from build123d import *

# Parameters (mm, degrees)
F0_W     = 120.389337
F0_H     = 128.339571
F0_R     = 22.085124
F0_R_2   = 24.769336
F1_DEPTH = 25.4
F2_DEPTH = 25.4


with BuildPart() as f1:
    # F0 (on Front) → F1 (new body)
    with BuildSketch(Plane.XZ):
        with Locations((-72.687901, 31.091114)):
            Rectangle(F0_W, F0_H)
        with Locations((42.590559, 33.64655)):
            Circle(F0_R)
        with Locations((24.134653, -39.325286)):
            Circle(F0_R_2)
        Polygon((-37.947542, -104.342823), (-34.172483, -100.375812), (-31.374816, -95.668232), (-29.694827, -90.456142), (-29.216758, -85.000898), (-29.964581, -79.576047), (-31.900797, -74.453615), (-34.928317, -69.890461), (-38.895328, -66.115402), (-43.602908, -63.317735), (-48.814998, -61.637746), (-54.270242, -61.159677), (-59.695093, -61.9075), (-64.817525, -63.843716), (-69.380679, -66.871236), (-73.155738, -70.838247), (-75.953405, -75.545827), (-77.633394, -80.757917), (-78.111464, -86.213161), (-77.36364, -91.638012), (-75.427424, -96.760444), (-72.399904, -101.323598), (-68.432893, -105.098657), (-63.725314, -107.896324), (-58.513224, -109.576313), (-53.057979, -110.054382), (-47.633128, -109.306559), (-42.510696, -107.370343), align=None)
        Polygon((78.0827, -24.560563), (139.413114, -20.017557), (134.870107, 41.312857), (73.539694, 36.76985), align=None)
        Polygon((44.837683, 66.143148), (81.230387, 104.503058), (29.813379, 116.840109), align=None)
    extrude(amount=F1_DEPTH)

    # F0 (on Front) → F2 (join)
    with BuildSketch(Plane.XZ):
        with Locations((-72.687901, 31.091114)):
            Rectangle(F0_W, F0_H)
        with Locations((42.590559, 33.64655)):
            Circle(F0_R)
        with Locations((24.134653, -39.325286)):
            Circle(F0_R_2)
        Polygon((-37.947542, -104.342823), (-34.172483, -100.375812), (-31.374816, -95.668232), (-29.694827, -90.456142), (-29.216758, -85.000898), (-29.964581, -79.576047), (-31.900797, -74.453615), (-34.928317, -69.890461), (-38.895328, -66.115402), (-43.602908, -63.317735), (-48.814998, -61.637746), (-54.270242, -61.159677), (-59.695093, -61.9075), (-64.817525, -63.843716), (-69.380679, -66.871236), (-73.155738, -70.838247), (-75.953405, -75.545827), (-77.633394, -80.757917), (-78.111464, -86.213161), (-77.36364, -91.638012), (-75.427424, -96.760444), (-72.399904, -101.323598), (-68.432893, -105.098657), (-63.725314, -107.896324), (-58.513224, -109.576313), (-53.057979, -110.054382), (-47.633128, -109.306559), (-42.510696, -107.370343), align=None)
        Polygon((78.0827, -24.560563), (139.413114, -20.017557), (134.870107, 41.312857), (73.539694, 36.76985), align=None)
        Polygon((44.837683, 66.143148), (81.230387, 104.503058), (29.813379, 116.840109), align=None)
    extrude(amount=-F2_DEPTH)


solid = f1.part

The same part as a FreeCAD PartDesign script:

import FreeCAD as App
import Part
import Sketcher
Q = App.Units.Quantity

doc = App.newDocument("Part")
body = doc.addObject("PartDesign::Body", "Body")
body.AllowCompound = True

# Sketch on XZ plane
sketch1 = body.newObject("Sketcher::SketchObject", "Sketch")
sketch1.AttachmentSupport = (doc.getObject("XZ_Plane"), [""])
sketch1.MapMode = "FlatFace"
sketch1.addGeometry([
    Part.LineSegment(App.Vector(-132.882569, 95.260899, 0), App.Vector(-132.882569, -33.078671, 0)),  # 0
    Part.LineSegment(App.Vector(-132.882569, -33.078671, 0), App.Vector(-12.493232, -33.078671, 0)),  # 1
    Part.LineSegment(App.Vector(-12.493232, -33.078671, 0), App.Vector(-12.493232, 95.260899, 0)),  # 2
    Part.LineSegment(App.Vector(-12.493232, 95.260899, 0), App.Vector(-132.882569, 95.260899, 0)),  # 3
    Part.Circle(App.Vector(42.590559, 33.64655, 0), App.Vector(0, 0, 1), 22.085124),  # 4
    Part.Circle(App.Vector(24.134653, -39.325286, 0), App.Vector(0, 0, 1), 24.769336),  # 5
    Part.LineSegment(App.Vector(-37.947542, -104.342823, 0), App.Vector(-34.172483, -100.375812, 0)),  # 6
    Part.LineSegment(App.Vector(-34.172483, -100.375812, 0), App.Vector(-31.374816, -95.668232, 0)),  # 7
    Part.LineSegment(App.Vector(-31.374816, -95.668232, 0), App.Vector(-29.694827, -90.456142, 0)),  # 8
    Part.LineSegment(App.Vector(-29.694827, -90.456142, 0), App.Vector(-29.216758, -85.000898, 0)),  # 9
    Part.LineSegment(App.Vector(-29.216758, -85.000898, 0), App.Vector(-29.964581, -79.576047, 0)),  # 10
    Part.LineSegment(App.Vector(-29.964581, -79.576047, 0), App.Vector(-31.900797, -74.453615, 0)),  # 11
    Part.LineSegment(App.Vector(-31.900797, -74.453615, 0), App.Vector(-34.928317, -69.890461, 0)),  # 12
    Part.LineSegment(App.Vector(-34.928317, -69.890461, 0), App.Vector(-38.895328, -66.115402, 0)),  # 13
    Part.LineSegment(App.Vector(-38.895328, -66.115402, 0), App.Vector(-43.602908, -63.317735, 0)),  # 14
    Part.LineSegment(App.Vector(-43.602908, -63.317735, 0), App.Vector(-48.814998, -61.637746, 0)),  # 15
    Part.LineSegment(App.Vector(-48.814998, -61.637746, 0), App.Vector(-54.270242, -61.159677, 0)),  # 16
    Part.LineSegment(App.Vector(-54.270242, -61.159677, 0), App.Vector(-59.695093, -61.9075, 0)),  # 17
    Part.LineSegment(App.Vector(-59.695093, -61.9075, 0), App.Vector(-64.817525, -63.843716, 0)),  # 18
    Part.LineSegment(App.Vector(-64.817525, -63.843716, 0), App.Vector(-69.380679, -66.871236, 0)),  # 19
    Part.LineSegment(App.Vector(-69.380679, -66.871236, 0), App.Vector(-73.155738, -70.838247, 0)),  # 20
    Part.LineSegment(App.Vector(-73.155738, -70.838247, 0), App.Vector(-75.953405, -75.545827, 0)),  # 21
    Part.LineSegment(App.Vector(-75.953405, -75.545827, 0), App.Vector(-77.633394, -80.757917, 0)),  # 22
    Part.LineSegment(App.Vector(-77.633394, -80.757917, 0), App.Vector(-78.111464, -86.213161, 0)),  # 23
    Part.LineSegment(App.Vector(-78.111464, -86.213161, 0), App.Vector(-77.36364, -91.638012, 0)),  # 24
    Part.LineSegment(App.Vector(-77.36364, -91.638012, 0), App.Vector(-75.427424, -96.760444, 0)),  # 25
    Part.LineSegment(App.Vector(-75.427424, -96.760444, 0), App.Vector(-72.399904, -101.323598, 0)),  # 26
    Part.LineSegment(App.Vector(-72.399904, -101.323598, 0), App.Vector(-68.432893, -105.098657, 0)),  # 27
    Part.LineSegment(App.Vector(-68.432893, -105.098657, 0), App.Vector(-63.725314, -107.896324, 0)),  # 28
    Part.LineSegment(App.Vector(-63.725314, -107.896324, 0), App.Vector(-58.513224, -109.576313, 0)),  # 29
    Part.LineSegment(App.Vector(-58.513224, -109.576313, 0), App.Vector(-53.057979, -110.054382, 0)),  # 30
    Part.LineSegment(App.Vector(-53.057979, -110.054382, 0), App.Vector(-47.633128, -109.306559, 0)),  # 31
    Part.LineSegment(App.Vector(-47.633128, -109.306559, 0), App.Vector(-42.510696, -107.370343, 0)),  # 32
    Part.LineSegment(App.Vector(-42.510696, -107.370343, 0), App.Vector(-37.947542, -104.342823, 0)),  # 33
    Part.LineSegment(App.Vector(78.0827, -24.560563, 0), App.Vector(139.413114, -20.017557, 0)),  # 34
    Part.LineSegment(App.Vector(139.413114, -20.017557, 0), App.Vector(134.870107, 41.312857, 0)),  # 35
    Part.LineSegment(App.Vector(134.870107, 41.312857, 0), App.Vector(73.539694, 36.76985, 0)),  # 36
    Part.LineSegment(App.Vector(73.539694, 36.76985, 0), App.Vector(78.0827, -24.560563, 0)),  # 37
    Part.LineSegment(App.Vector(44.837683, 66.143148, 0), App.Vector(81.230387, 104.503058, 0)),  # 38
    Part.LineSegment(App.Vector(81.230387, 104.503058, 0), App.Vector(29.813379, 116.840109, 0)),  # 39
    Part.LineSegment(App.Vector(29.813379, 116.840109, 0), App.Vector(44.837683, 66.143148, 0)),  # 40
], False)
sketch1.addConstraint([
    Sketcher.Constraint("Coincident", 0, 2, 1, 1),
    Sketcher.Constraint("Coincident", 1, 2, 2, 1),
    Sketcher.Constraint("Coincident", 2, 2, 3, 1),
    Sketcher.Constraint("Coincident", 3, 2, 0, 1),
    Sketcher.Constraint("Coincident", 6, 2, 7, 1),
    Sketcher.Constraint("Coincident", 7, 2, 8, 1),
    Sketcher.Constraint("Coincident", 8, 2, 9, 1),
    Sketcher.Constraint("Coincident", 9, 2, 10, 1),
    Sketcher.Constraint("Coincident", 10, 2, 11, 1),
    Sketcher.Constraint("Coincident", 11, 2, 12, 1),
    Sketcher.Constraint("Coincident", 12, 2, 13, 1),
    Sketcher.Constraint("Coincident", 13, 2, 14, 1),
    Sketcher.Constraint("Coincident", 14, 2, 15, 1),
    Sketcher.Constraint("Coincident", 15, 2, 16, 1),
    Sketcher.Constraint("Coincident", 16, 2, 17, 1),
    Sketcher.Constraint("Coincident", 17, 2, 18, 1),
    Sketcher.Constraint("Coincident", 18, 2, 19, 1),
    Sketcher.Constraint("Coincident", 19, 2, 20, 1),
    Sketcher.Constraint("Coincident", 20, 2, 21, 1),
    Sketcher.Constraint("Coincident", 21, 2, 22, 1),
    Sketcher.Constraint("Coincident", 22, 2, 23, 1),
    Sketcher.Constraint("Coincident", 23, 2, 24, 1),
    Sketcher.Constraint("Coincident", 24, 2, 25, 1),
    Sketcher.Constraint("Coincident", 25, 2, 26, 1),
    Sketcher.Constraint("Coincident", 26, 2, 27, 1),
    Sketcher.Constraint("Coincident", 27, 2, 28, 1),
    Sketcher.Constraint("Coincident", 28, 2, 29, 1),
    Sketcher.Constraint("Coincident", 29, 2, 30, 1),
    Sketcher.Constraint("Coincident", 30, 2, 31, 1),
    Sketcher.Constraint("Coincident", 31, 2, 32, 1),
    Sketcher.Constraint("Coincident", 32, 2, 33, 1),
    Sketcher.Constraint("Coincident", 33, 2, 6, 1),
    Sketcher.Constraint("Coincident", 34, 2, 35, 1),
    Sketcher.Constraint("Coincident", 35, 2, 36, 1),
    Sketcher.Constraint("Coincident", 36, 2, 37, 1),
    Sketcher.Constraint("Coincident", 37, 2, 34, 1),
    Sketcher.Constraint("Coincident", 38, 2, 39, 1),
    Sketcher.Constraint("Coincident", 39, 2, 40, 1),
    Sketcher.Constraint("Coincident", 40, 2, 38, 1),
    Sketcher.Constraint("Vertical", 0),
    Sketcher.Constraint("Horizontal", 1),
    Sketcher.Constraint("Vertical", 2),
    Sketcher.Constraint("Horizontal", 3),
    Sketcher.Constraint("Diameter", 5, 49.538672),
    Sketcher.Constraint("Diameter", 4, 44.170248),
    Sketcher.Constraint("DistanceX", 38, 2, 35, 2, Q("2.1118 in")),
    Sketcher.Constraint("DistanceY", 0, 2, 0, 1, 128.339571),
    Sketcher.Constraint("DistanceY", -1, 1, 2, 2, 95.260899),
    Sketcher.Constraint("DistanceY", 9, 2, -1, 1, 85.000898),
    Sketcher.Constraint("DistanceX", 15, 2, -1, 1, 48.814998),
    Sketcher.Constraint("DistanceY", 17, 2, -1, 1, 61.9075),
    Sketcher.Constraint("DistanceY", 26, 2, -1, 1, 101.323598),
    Sketcher.Constraint("DistanceX", -1, 1, 37, 2, 78.0827),
    Sketcher.Constraint("DistanceX", 12, 2, 7, 2, 3.553501),
    Sketcher.Constraint("DistanceX", 13, 2, 8, 2, 9.200501),
    Sketcher.Constraint("DistanceX", 15, 2, 11, 2, 16.914201),
    Sketcher.Constraint("DistanceY", 10, 2, 15, 2, 17.938301),
    Sketcher.Constraint("DistanceY", 19, 2, 14, 2, 3.553501),
    Sketcher.Constraint("DistanceY", 20, 2, 15, 2, 9.200501),
    Sketcher.Constraint("DistanceY", 22, 2, 18, 2, 16.914201),
    Sketcher.Constraint("DistanceX", 22, 2, 17, 2, 17.938301),
    Sketcher.Constraint("DistanceX", 21, 2, 26, 2, 3.553501),
    Sketcher.Constraint("DistanceX", 22, 2, 27, 2, 9.200501),
    Sketcher.Constraint("DistanceX", 25, 2, 29, 2, 16.9142),
    Sketcher.Constraint("DistanceY", 29, 2, 24, 2, 17.938301),
    Sketcher.Constraint("DistanceY", 31, 2, 27, 2, 4.207902),
    Sketcher.Constraint("DistanceY", 4, 3, 36, 2, 3.1233),
    Sketcher.Constraint("DistanceY", 35, 2, 38, 2, 63.190201),
    Sketcher.Constraint("Distance", 9, 5.476152),
    Sketcher.Constraint("Distance", 16, 5.476152),
    Sketcher.Constraint("Distance", 23, 5.476152),
    Sketcher.Constraint("Distance", 28, 5.476152),
    Sketcher.Constraint("Distance", 38, 52.87638),
    Sketcher.Constraint("Distance", 39, 52.87638),
    Sketcher.Constraint("Distance", 40, 52.87638),
    Sketcher.Constraint("DistanceX", 1, 1, 1, 2, 120.389337),
    Sketcher.Constraint("DistanceX", -1, 1, 4, 3, 42.590559),
    Sketcher.Constraint("DistanceY", -1, 1, 4, 3, 33.64655),
    Sketcher.Constraint("DistanceX", 0, 2, -1, 1, 132.882569),
    Sketcher.Constraint("DistanceY", 6, 2, -1, 1, 100.375812),
    Sketcher.Constraint("DistanceY", 8, 2, -1, 1, 90.456142),
    Sketcher.Constraint("DistanceX", 10, 2, -1, 1, 29.964581),
    Sketcher.Constraint("DistanceY", 12, 2, -1, 1, 69.890461),
    Sketcher.Constraint("DistanceX", 19, 2, -1, 1, 69.380679),
    Sketcher.Constraint("DistanceX", 20, 2, -1, 1, 73.155738),
    Sketcher.Constraint("DistanceY", 23, 2, -1, 1, 86.213161),
    Sketcher.Constraint("DistanceX", 24, 2, -1, 1, 77.36364),
    Sketcher.Constraint("DistanceX", 30, 2, -1, 1, 53.057979),
    Sketcher.Constraint("DistanceY", 31, 2, -1, 1, 109.306559),
    Sketcher.Constraint("DistanceX", -1, 1, 39, 2, 29.813379),
    Sketcher.Constraint("DistanceY", -1, 1, 39, 2, 116.840109),
    Sketcher.Constraint("DistanceX", 6, 2, 1, 2, 21.679251),
    Sketcher.Constraint("DistanceY", 6, 2, 7, 2, 4.70758),
    Sketcher.Constraint("DistanceX", 7, 2, 5, 3, 55.509469),
    Sketcher.Constraint("DistanceX", 7, 2, 8, 2, 1.679989),
    Sketcher.Constraint("DistanceY", 9, 2, 10, 2, 5.424851),
    Sketcher.Constraint("DistanceX", 11, 2, 9, 2, 2.684039),
    Sketcher.Constraint("DistanceY", 12, 2, 13, 2, 3.775059),
    Sketcher.Constraint("DistanceX", 14, 2, 13, 2, 4.70758),
    Sketcher.Constraint("DistanceY", 11, 2, 14, 2, 11.13588),
    Sketcher.Constraint("DistanceY", 14, 2, 15, 2, 1.679989),
    Sketcher.Constraint("DistanceY", 15, 2, 16, 2, 0.478069),
    Sketcher.Constraint("DistanceX", 17, 2, 16, 2, 5.424851),
    Sketcher.Constraint("DistanceY", 18, 2, 16, 2, 2.684039),
    Sketcher.Constraint("DistanceY", 21, 2, 20, 2, 4.70758),
    Sketcher.Constraint("DistanceX", 21, 2, 18, 2, 11.13588),
    Sketcher.Constraint("DistanceX", 22, 2, 21, 2, 1.679989),
    Sketcher.Constraint("DistanceY", 24, 2, 23, 2, 5.424851),
    Sketcher.Constraint("DistanceX", 23, 2, 25, 2, 2.68404),
    Sketcher.Constraint("DistanceX", 27, 2, 28, 2, 4.707579),
    Sketcher.Constraint("DistanceY", 28, 2, 25, 2, 11.13588),
    Sketcher.Constraint("DistanceY", 30, 2, 29, 2, 0.478069),
    Sketcher.Constraint("DistanceX", 30, 2, 31, 2, 5.424851),
    Sketcher.Constraint("DistanceX", 31, 2, 32, 2, 5.122432),
    Sketcher.Constraint("DistanceY", 30, 2, 32, 2, 2.684039),
    Sketcher.Constraint("DistanceX", 33, 2, 6, 2, 3.775059),
    Sketcher.Constraint("DistanceY", 33, 2, 6, 2, 3.967011),
    Sketcher.Constraint("DistanceX", 5, 3, 34, 2, 115.278461),
    Sketcher.Constraint("DistanceY", 5, 3, 34, 2, 19.307729),
    Sketcher.Constraint("DistanceY", 10, 2, 34, 2, 59.55849),
    Sketcher.Constraint("DistanceX", 2, 2, 35, 2, 147.363339),
    Sketcher.Constraint("DistanceX", 36, 2, 34, 2, 65.87342),
    Sketcher.Constraint("DistanceY", 37, 2, 35, 2, 65.87342),
])
pad1 = body.newObject("PartDesign::Pad", "Pad")
pad1.Profile = sketch1
pad1.Length = Q("1 in")

# Sketch on XZ plane
sketch2 = body.newObject("Sketcher::SketchObject", "Sketch001")
sketch2.AttachmentSupport = (doc.getObject("XZ_Plane"), [""])
sketch2.MapMode = "FlatFace"
sketch2.addGeometry([
    Part.LineSegment(App.Vector(-132.882569, 95.260899, 0), App.Vector(-132.882569, -33.078671, 0)),  # 0
    Part.LineSegment(App.Vector(-132.882569, -33.078671, 0), App.Vector(-12.493232, -33.078671, 0)),  # 1
    Part.LineSegment(App.Vector(-12.493232, -33.078671, 0), App.Vector(-12.493232, 95.260899, 0)),  # 2
    Part.LineSegment(App.Vector(-12.493232, 95.260899, 0), App.Vector(-132.882569, 95.260899, 0)),  # 3
    Part.Circle(App.Vector(42.590559, 33.64655, 0), App.Vector(0, 0, 1), 22.085124),  # 4
    Part.Circle(App.Vector(24.134653, -39.325286, 0), App.Vector(0, 0, 1), 24.769336),  # 5
    Part.LineSegment(App.Vector(-37.947542, -104.342823, 0), App.Vector(-34.172483, -100.375812, 0)),  # 6
    Part.LineSegment(App.Vector(-34.172483, -100.375812, 0), App.Vector(-31.374816, -95.668232, 0)),  # 7
    Part.LineSegment(App.Vector(-31.374816, -95.668232, 0), App.Vector(-29.694827, -90.456142, 0)),  # 8
    Part.LineSegment(App.Vector(-29.694827, -90.456142, 0), App.Vector(-29.216758, -85.000898, 0)),  # 9
    Part.LineSegment(App.Vector(-29.216758, -85.000898, 0), App.Vector(-29.964581, -79.576047, 0)),  # 10
    Part.LineSegment(App.Vector(-29.964581, -79.576047, 0), App.Vector(-31.900797, -74.453615, 0)),  # 11
    Part.LineSegment(App.Vector(-31.900797, -74.453615, 0), App.Vector(-34.928317, -69.890461, 0)),  # 12
    Part.LineSegment(App.Vector(-34.928317, -69.890461, 0), App.Vector(-38.895328, -66.115402, 0)),  # 13
    Part.LineSegment(App.Vector(-38.895328, -66.115402, 0), App.Vector(-43.602908, -63.317735, 0)),  # 14
    Part.LineSegment(App.Vector(-43.602908, -63.317735, 0), App.Vector(-48.814998, -61.637746, 0)),  # 15
    Part.LineSegment(App.Vector(-48.814998, -61.637746, 0), App.Vector(-54.270242, -61.159677, 0)),  # 16
    Part.LineSegment(App.Vector(-54.270242, -61.159677, 0), App.Vector(-59.695093, -61.9075, 0)),  # 17
    Part.LineSegment(App.Vector(-59.695093, -61.9075, 0), App.Vector(-64.817525, -63.843716, 0)),  # 18
    Part.LineSegment(App.Vector(-64.817525, -63.843716, 0), App.Vector(-69.380679, -66.871236, 0)),  # 19
    Part.LineSegment(App.Vector(-69.380679, -66.871236, 0), App.Vector(-73.155738, -70.838247, 0)),  # 20
    Part.LineSegment(App.Vector(-73.155738, -70.838247, 0), App.Vector(-75.953405, -75.545827, 0)),  # 21
    Part.LineSegment(App.Vector(-75.953405, -75.545827, 0), App.Vector(-77.633394, -80.757917, 0)),  # 22
    Part.LineSegment(App.Vector(-77.633394, -80.757917, 0), App.Vector(-78.111464, -86.213161, 0)),  # 23
    Part.LineSegment(App.Vector(-78.111464, -86.213161, 0), App.Vector(-77.36364, -91.638012, 0)),  # 24
    Part.LineSegment(App.Vector(-77.36364, -91.638012, 0), App.Vector(-75.427424, -96.760444, 0)),  # 25
    Part.LineSegment(App.Vector(-75.427424, -96.760444, 0), App.Vector(-72.399904, -101.323598, 0)),  # 26
    Part.LineSegment(App.Vector(-72.399904, -101.323598, 0), App.Vector(-68.432893, -105.098657, 0)),  # 27
    Part.LineSegment(App.Vector(-68.432893, -105.098657, 0), App.Vector(-63.725314, -107.896324, 0)),  # 28
    Part.LineSegment(App.Vector(-63.725314, -107.896324, 0), App.Vector(-58.513224, -109.576313, 0)),  # 29
    Part.LineSegment(App.Vector(-58.513224, -109.576313, 0), App.Vector(-53.057979, -110.054382, 0)),  # 30
    Part.LineSegment(App.Vector(-53.057979, -110.054382, 0), App.Vector(-47.633128, -109.306559, 0)),  # 31
    Part.LineSegment(App.Vector(-47.633128, -109.306559, 0), App.Vector(-42.510696, -107.370343, 0)),  # 32
    Part.LineSegment(App.Vector(-42.510696, -107.370343, 0), App.Vector(-37.947542, -104.342823, 0)),  # 33
    Part.LineSegment(App.Vector(78.0827, -24.560563, 0), App.Vector(139.413114, -20.017557, 0)),  # 34
    Part.LineSegment(App.Vector(139.413114, -20.017557, 0), App.Vector(134.870107, 41.312857, 0)),  # 35
    Part.LineSegment(App.Vector(134.870107, 41.312857, 0), App.Vector(73.539694, 36.76985, 0)),  # 36
    Part.LineSegment(App.Vector(73.539694, 36.76985, 0), App.Vector(78.0827, -24.560563, 0)),  # 37
    Part.LineSegment(App.Vector(44.837683, 66.143148, 0), App.Vector(81.230387, 104.503058, 0)),  # 38
    Part.LineSegment(App.Vector(81.230387, 104.503058, 0), App.Vector(29.813379, 116.840109, 0)),  # 39
    Part.LineSegment(App.Vector(29.813379, 116.840109, 0), App.Vector(44.837683, 66.143148, 0)),  # 40
], False)
sketch2.addConstraint([
    Sketcher.Constraint("Coincident", 0, 2, 1, 1),
    Sketcher.Constraint("Coincident", 1, 2, 2, 1),
    Sketcher.Constraint("Coincident", 2, 2, 3, 1),
    Sketcher.Constraint("Coincident", 3, 2, 0, 1),
    Sketcher.Constraint("Coincident", 6, 2, 7, 1),
    Sketcher.Constraint("Coincident", 7, 2, 8, 1),
    Sketcher.Constraint("Coincident", 8, 2, 9, 1),
    Sketcher.Constraint("Coincident", 9, 2, 10, 1),
    Sketcher.Constraint("Coincident", 10, 2, 11, 1),
    Sketcher.Constraint("Coincident", 11, 2, 12, 1),
    Sketcher.Constraint("Coincident", 12, 2, 13, 1),
    Sketcher.Constraint("Coincident", 13, 2, 14, 1),
    Sketcher.Constraint("Coincident", 14, 2, 15, 1),
    Sketcher.Constraint("Coincident", 15, 2, 16, 1),
    Sketcher.Constraint("Coincident", 16, 2, 17, 1),
    Sketcher.Constraint("Coincident", 17, 2, 18, 1),
    Sketcher.Constraint("Coincident", 18, 2, 19, 1),
    Sketcher.Constraint("Coincident", 19, 2, 20, 1),
    Sketcher.Constraint("Coincident", 20, 2, 21, 1),
    Sketcher.Constraint("Coincident", 21, 2, 22, 1),
    Sketcher.Constraint("Coincident", 22, 2, 23, 1),
    Sketcher.Constraint("Coincident", 23, 2, 24, 1),
    Sketcher.Constraint("Coincident", 24, 2, 25, 1),
    Sketcher.Constraint("Coincident", 25, 2, 26, 1),
    Sketcher.Constraint("Coincident", 26, 2, 27, 1),
    Sketcher.Constraint("Coincident", 27, 2, 28, 1),
    Sketcher.Constraint("Coincident", 28, 2, 29, 1),
    Sketcher.Constraint("Coincident", 29, 2, 30, 1),
    Sketcher.Constraint("Coincident", 30, 2, 31, 1),
    Sketcher.Constraint("Coincident", 31, 2, 32, 1),
    Sketcher.Constraint("Coincident", 32, 2, 33, 1),
    Sketcher.Constraint("Coincident", 33, 2, 6, 1),
    Sketcher.Constraint("Coincident", 34, 2, 35, 1),
    Sketcher.Constraint("Coincident", 35, 2, 36, 1),
    Sketcher.Constraint("Coincident", 36, 2, 37, 1),
    Sketcher.Constraint("Coincident", 37, 2, 34, 1),
    Sketcher.Constraint("Coincident", 38, 2, 39, 1),
    Sketcher.Constraint("Coincident", 39, 2, 40, 1),
    Sketcher.Constraint("Coincident", 40, 2, 38, 1),
    Sketcher.Constraint("Vertical", 0),
    Sketcher.Constraint("Horizontal", 1),
    Sketcher.Constraint("Vertical", 2),
    Sketcher.Constraint("Horizontal", 3),
    Sketcher.Constraint("Diameter", 5, 49.538672),
    Sketcher.Constraint("Diameter", 4, 44.170248),
    Sketcher.Constraint("DistanceX", 38, 2, 35, 2, Q("2.1118 in")),
    Sketcher.Constraint("DistanceY", 0, 2, 0, 1, 128.339571),
    Sketcher.Constraint("DistanceY", -1, 1, 2, 2, 95.260899),
    Sketcher.Constraint("DistanceY", 9, 2, -1, 1, 85.000898),
    Sketcher.Constraint("DistanceX", 15, 2, -1, 1, 48.814998),
    Sketcher.Constraint("DistanceY", 17, 2, -1, 1, 61.9075),
    Sketcher.Constraint("DistanceY", 26, 2, -1, 1, 101.323598),
    Sketcher.Constraint("DistanceX", -1, 1, 37, 2, 78.0827),
    Sketcher.Constraint("DistanceX", 12, 2, 7, 2, 3.553501),
    Sketcher.Constraint("DistanceX", 13, 2, 8, 2, 9.200501),
    Sketcher.Constraint("DistanceX", 15, 2, 11, 2, 16.914201),
    Sketcher.Constraint("DistanceY", 10, 2, 15, 2, 17.938301),
    Sketcher.Constraint("DistanceY", 19, 2, 14, 2, 3.553501),
    Sketcher.Constraint("DistanceY", 20, 2, 15, 2, 9.200501),
    Sketcher.Constraint("DistanceY", 22, 2, 18, 2, 16.914201),
    Sketcher.Constraint("DistanceX", 22, 2, 17, 2, 17.938301),
    Sketcher.Constraint("DistanceX", 21, 2, 26, 2, 3.553501),
    Sketcher.Constraint("DistanceX", 22, 2, 27, 2, 9.200501),
    Sketcher.Constraint("DistanceX", 25, 2, 29, 2, 16.9142),
    Sketcher.Constraint("DistanceY", 29, 2, 24, 2, 17.938301),
    Sketcher.Constraint("DistanceY", 31, 2, 27, 2, 4.207902),
    Sketcher.Constraint("DistanceY", 4, 3, 36, 2, 3.1233),
    Sketcher.Constraint("DistanceY", 35, 2, 38, 2, 63.190201),
    Sketcher.Constraint("Distance", 9, 5.476152),
    Sketcher.Constraint("Distance", 16, 5.476152),
    Sketcher.Constraint("Distance", 23, 5.476152),
    Sketcher.Constraint("Distance", 28, 5.476152),
    Sketcher.Constraint("Distance", 38, 52.87638),
    Sketcher.Constraint("Distance", 39, 52.87638),
    Sketcher.Constraint("Distance", 40, 52.87638),
    Sketcher.Constraint("DistanceX", 1, 1, 1, 2, 120.389337),
    Sketcher.Constraint("DistanceX", -1, 1, 4, 3, 42.590559),
    Sketcher.Constraint("DistanceY", -1, 1, 4, 3, 33.64655),
    Sketcher.Constraint("DistanceX", 0, 2, -1, 1, 132.882569),
    Sketcher.Constraint("DistanceY", 6, 2, -1, 1, 100.375812),
    Sketcher.Constraint("DistanceY", 8, 2, -1, 1, 90.456142),
    Sketcher.Constraint("DistanceX", 10, 2, -1, 1, 29.964581),
    Sketcher.Constraint("DistanceY", 12, 2, -1, 1, 69.890461),
    Sketcher.Constraint("DistanceX", 19, 2, -1, 1, 69.380679),
    Sketcher.Constraint("DistanceX", 20, 2, -1, 1, 73.155738),
    Sketcher.Constraint("DistanceY", 23, 2, -1, 1, 86.213161),
    Sketcher.Constraint("DistanceX", 24, 2, -1, 1, 77.36364),
    Sketcher.Constraint("DistanceX", 30, 2, -1, 1, 53.057979),
    Sketcher.Constraint("DistanceY", 31, 2, -1, 1, 109.306559),
    Sketcher.Constraint("DistanceX", -1, 1, 39, 2, 29.813379),
    Sketcher.Constraint("DistanceY", -1, 1, 39, 2, 116.840109),
    Sketcher.Constraint("DistanceX", 6, 2, 1, 2, 21.679251),
    Sketcher.Constraint("DistanceY", 6, 2, 7, 2, 4.70758),
    Sketcher.Constraint("DistanceX", 7, 2, 5, 3, 55.509469),
    Sketcher.Constraint("DistanceX", 7, 2, 8, 2, 1.679989),
    Sketcher.Constraint("DistanceY", 9, 2, 10, 2, 5.424851),
    Sketcher.Constraint("DistanceX", 11, 2, 9, 2, 2.684039),
    Sketcher.Constraint("DistanceY", 12, 2, 13, 2, 3.775059),
    Sketcher.Constraint("DistanceX", 14, 2, 13, 2, 4.70758),
    Sketcher.Constraint("DistanceY", 11, 2, 14, 2, 11.13588),
    Sketcher.Constraint("DistanceY", 14, 2, 15, 2, 1.679989),
    Sketcher.Constraint("DistanceY", 15, 2, 16, 2, 0.478069),
    Sketcher.Constraint("DistanceX", 17, 2, 16, 2, 5.424851),
    Sketcher.Constraint("DistanceY", 18, 2, 16, 2, 2.684039),
    Sketcher.Constraint("DistanceY", 21, 2, 20, 2, 4.70758),
    Sketcher.Constraint("DistanceX", 21, 2, 18, 2, 11.13588),
    Sketcher.Constraint("DistanceX", 22, 2, 21, 2, 1.679989),
    Sketcher.Constraint("DistanceY", 24, 2, 23, 2, 5.424851),
    Sketcher.Constraint("DistanceX", 23, 2, 25, 2, 2.68404),
    Sketcher.Constraint("DistanceX", 27, 2, 28, 2, 4.707579),
    Sketcher.Constraint("DistanceY", 28, 2, 25, 2, 11.13588),
    Sketcher.Constraint("DistanceY", 30, 2, 29, 2, 0.478069),
    Sketcher.Constraint("DistanceX", 30, 2, 31, 2, 5.424851),
    Sketcher.Constraint("DistanceX", 31, 2, 32, 2, 5.122432),
    Sketcher.Constraint("DistanceY", 30, 2, 32, 2, 2.684039),
    Sketcher.Constraint("DistanceX", 33, 2, 6, 2, 3.775059),
    Sketcher.Constraint("DistanceY", 33, 2, 6, 2, 3.967011),
    Sketcher.Constraint("DistanceX", 5, 3, 34, 2, 115.278461),
    Sketcher.Constraint("DistanceY", 5, 3, 34, 2, 19.307729),
    Sketcher.Constraint("DistanceY", 10, 2, 34, 2, 59.55849),
    Sketcher.Constraint("DistanceX", 2, 2, 35, 2, 147.363339),
    Sketcher.Constraint("DistanceX", 36, 2, 34, 2, 65.87342),
    Sketcher.Constraint("DistanceY", 37, 2, 35, 2, 65.87342),
])
pad2 = body.newObject("PartDesign::Pad", "Pad001")
pad2.Profile = sketch2
pad2.Length = Q("1 in")
pad2.Reversed = True

doc.recompute()
